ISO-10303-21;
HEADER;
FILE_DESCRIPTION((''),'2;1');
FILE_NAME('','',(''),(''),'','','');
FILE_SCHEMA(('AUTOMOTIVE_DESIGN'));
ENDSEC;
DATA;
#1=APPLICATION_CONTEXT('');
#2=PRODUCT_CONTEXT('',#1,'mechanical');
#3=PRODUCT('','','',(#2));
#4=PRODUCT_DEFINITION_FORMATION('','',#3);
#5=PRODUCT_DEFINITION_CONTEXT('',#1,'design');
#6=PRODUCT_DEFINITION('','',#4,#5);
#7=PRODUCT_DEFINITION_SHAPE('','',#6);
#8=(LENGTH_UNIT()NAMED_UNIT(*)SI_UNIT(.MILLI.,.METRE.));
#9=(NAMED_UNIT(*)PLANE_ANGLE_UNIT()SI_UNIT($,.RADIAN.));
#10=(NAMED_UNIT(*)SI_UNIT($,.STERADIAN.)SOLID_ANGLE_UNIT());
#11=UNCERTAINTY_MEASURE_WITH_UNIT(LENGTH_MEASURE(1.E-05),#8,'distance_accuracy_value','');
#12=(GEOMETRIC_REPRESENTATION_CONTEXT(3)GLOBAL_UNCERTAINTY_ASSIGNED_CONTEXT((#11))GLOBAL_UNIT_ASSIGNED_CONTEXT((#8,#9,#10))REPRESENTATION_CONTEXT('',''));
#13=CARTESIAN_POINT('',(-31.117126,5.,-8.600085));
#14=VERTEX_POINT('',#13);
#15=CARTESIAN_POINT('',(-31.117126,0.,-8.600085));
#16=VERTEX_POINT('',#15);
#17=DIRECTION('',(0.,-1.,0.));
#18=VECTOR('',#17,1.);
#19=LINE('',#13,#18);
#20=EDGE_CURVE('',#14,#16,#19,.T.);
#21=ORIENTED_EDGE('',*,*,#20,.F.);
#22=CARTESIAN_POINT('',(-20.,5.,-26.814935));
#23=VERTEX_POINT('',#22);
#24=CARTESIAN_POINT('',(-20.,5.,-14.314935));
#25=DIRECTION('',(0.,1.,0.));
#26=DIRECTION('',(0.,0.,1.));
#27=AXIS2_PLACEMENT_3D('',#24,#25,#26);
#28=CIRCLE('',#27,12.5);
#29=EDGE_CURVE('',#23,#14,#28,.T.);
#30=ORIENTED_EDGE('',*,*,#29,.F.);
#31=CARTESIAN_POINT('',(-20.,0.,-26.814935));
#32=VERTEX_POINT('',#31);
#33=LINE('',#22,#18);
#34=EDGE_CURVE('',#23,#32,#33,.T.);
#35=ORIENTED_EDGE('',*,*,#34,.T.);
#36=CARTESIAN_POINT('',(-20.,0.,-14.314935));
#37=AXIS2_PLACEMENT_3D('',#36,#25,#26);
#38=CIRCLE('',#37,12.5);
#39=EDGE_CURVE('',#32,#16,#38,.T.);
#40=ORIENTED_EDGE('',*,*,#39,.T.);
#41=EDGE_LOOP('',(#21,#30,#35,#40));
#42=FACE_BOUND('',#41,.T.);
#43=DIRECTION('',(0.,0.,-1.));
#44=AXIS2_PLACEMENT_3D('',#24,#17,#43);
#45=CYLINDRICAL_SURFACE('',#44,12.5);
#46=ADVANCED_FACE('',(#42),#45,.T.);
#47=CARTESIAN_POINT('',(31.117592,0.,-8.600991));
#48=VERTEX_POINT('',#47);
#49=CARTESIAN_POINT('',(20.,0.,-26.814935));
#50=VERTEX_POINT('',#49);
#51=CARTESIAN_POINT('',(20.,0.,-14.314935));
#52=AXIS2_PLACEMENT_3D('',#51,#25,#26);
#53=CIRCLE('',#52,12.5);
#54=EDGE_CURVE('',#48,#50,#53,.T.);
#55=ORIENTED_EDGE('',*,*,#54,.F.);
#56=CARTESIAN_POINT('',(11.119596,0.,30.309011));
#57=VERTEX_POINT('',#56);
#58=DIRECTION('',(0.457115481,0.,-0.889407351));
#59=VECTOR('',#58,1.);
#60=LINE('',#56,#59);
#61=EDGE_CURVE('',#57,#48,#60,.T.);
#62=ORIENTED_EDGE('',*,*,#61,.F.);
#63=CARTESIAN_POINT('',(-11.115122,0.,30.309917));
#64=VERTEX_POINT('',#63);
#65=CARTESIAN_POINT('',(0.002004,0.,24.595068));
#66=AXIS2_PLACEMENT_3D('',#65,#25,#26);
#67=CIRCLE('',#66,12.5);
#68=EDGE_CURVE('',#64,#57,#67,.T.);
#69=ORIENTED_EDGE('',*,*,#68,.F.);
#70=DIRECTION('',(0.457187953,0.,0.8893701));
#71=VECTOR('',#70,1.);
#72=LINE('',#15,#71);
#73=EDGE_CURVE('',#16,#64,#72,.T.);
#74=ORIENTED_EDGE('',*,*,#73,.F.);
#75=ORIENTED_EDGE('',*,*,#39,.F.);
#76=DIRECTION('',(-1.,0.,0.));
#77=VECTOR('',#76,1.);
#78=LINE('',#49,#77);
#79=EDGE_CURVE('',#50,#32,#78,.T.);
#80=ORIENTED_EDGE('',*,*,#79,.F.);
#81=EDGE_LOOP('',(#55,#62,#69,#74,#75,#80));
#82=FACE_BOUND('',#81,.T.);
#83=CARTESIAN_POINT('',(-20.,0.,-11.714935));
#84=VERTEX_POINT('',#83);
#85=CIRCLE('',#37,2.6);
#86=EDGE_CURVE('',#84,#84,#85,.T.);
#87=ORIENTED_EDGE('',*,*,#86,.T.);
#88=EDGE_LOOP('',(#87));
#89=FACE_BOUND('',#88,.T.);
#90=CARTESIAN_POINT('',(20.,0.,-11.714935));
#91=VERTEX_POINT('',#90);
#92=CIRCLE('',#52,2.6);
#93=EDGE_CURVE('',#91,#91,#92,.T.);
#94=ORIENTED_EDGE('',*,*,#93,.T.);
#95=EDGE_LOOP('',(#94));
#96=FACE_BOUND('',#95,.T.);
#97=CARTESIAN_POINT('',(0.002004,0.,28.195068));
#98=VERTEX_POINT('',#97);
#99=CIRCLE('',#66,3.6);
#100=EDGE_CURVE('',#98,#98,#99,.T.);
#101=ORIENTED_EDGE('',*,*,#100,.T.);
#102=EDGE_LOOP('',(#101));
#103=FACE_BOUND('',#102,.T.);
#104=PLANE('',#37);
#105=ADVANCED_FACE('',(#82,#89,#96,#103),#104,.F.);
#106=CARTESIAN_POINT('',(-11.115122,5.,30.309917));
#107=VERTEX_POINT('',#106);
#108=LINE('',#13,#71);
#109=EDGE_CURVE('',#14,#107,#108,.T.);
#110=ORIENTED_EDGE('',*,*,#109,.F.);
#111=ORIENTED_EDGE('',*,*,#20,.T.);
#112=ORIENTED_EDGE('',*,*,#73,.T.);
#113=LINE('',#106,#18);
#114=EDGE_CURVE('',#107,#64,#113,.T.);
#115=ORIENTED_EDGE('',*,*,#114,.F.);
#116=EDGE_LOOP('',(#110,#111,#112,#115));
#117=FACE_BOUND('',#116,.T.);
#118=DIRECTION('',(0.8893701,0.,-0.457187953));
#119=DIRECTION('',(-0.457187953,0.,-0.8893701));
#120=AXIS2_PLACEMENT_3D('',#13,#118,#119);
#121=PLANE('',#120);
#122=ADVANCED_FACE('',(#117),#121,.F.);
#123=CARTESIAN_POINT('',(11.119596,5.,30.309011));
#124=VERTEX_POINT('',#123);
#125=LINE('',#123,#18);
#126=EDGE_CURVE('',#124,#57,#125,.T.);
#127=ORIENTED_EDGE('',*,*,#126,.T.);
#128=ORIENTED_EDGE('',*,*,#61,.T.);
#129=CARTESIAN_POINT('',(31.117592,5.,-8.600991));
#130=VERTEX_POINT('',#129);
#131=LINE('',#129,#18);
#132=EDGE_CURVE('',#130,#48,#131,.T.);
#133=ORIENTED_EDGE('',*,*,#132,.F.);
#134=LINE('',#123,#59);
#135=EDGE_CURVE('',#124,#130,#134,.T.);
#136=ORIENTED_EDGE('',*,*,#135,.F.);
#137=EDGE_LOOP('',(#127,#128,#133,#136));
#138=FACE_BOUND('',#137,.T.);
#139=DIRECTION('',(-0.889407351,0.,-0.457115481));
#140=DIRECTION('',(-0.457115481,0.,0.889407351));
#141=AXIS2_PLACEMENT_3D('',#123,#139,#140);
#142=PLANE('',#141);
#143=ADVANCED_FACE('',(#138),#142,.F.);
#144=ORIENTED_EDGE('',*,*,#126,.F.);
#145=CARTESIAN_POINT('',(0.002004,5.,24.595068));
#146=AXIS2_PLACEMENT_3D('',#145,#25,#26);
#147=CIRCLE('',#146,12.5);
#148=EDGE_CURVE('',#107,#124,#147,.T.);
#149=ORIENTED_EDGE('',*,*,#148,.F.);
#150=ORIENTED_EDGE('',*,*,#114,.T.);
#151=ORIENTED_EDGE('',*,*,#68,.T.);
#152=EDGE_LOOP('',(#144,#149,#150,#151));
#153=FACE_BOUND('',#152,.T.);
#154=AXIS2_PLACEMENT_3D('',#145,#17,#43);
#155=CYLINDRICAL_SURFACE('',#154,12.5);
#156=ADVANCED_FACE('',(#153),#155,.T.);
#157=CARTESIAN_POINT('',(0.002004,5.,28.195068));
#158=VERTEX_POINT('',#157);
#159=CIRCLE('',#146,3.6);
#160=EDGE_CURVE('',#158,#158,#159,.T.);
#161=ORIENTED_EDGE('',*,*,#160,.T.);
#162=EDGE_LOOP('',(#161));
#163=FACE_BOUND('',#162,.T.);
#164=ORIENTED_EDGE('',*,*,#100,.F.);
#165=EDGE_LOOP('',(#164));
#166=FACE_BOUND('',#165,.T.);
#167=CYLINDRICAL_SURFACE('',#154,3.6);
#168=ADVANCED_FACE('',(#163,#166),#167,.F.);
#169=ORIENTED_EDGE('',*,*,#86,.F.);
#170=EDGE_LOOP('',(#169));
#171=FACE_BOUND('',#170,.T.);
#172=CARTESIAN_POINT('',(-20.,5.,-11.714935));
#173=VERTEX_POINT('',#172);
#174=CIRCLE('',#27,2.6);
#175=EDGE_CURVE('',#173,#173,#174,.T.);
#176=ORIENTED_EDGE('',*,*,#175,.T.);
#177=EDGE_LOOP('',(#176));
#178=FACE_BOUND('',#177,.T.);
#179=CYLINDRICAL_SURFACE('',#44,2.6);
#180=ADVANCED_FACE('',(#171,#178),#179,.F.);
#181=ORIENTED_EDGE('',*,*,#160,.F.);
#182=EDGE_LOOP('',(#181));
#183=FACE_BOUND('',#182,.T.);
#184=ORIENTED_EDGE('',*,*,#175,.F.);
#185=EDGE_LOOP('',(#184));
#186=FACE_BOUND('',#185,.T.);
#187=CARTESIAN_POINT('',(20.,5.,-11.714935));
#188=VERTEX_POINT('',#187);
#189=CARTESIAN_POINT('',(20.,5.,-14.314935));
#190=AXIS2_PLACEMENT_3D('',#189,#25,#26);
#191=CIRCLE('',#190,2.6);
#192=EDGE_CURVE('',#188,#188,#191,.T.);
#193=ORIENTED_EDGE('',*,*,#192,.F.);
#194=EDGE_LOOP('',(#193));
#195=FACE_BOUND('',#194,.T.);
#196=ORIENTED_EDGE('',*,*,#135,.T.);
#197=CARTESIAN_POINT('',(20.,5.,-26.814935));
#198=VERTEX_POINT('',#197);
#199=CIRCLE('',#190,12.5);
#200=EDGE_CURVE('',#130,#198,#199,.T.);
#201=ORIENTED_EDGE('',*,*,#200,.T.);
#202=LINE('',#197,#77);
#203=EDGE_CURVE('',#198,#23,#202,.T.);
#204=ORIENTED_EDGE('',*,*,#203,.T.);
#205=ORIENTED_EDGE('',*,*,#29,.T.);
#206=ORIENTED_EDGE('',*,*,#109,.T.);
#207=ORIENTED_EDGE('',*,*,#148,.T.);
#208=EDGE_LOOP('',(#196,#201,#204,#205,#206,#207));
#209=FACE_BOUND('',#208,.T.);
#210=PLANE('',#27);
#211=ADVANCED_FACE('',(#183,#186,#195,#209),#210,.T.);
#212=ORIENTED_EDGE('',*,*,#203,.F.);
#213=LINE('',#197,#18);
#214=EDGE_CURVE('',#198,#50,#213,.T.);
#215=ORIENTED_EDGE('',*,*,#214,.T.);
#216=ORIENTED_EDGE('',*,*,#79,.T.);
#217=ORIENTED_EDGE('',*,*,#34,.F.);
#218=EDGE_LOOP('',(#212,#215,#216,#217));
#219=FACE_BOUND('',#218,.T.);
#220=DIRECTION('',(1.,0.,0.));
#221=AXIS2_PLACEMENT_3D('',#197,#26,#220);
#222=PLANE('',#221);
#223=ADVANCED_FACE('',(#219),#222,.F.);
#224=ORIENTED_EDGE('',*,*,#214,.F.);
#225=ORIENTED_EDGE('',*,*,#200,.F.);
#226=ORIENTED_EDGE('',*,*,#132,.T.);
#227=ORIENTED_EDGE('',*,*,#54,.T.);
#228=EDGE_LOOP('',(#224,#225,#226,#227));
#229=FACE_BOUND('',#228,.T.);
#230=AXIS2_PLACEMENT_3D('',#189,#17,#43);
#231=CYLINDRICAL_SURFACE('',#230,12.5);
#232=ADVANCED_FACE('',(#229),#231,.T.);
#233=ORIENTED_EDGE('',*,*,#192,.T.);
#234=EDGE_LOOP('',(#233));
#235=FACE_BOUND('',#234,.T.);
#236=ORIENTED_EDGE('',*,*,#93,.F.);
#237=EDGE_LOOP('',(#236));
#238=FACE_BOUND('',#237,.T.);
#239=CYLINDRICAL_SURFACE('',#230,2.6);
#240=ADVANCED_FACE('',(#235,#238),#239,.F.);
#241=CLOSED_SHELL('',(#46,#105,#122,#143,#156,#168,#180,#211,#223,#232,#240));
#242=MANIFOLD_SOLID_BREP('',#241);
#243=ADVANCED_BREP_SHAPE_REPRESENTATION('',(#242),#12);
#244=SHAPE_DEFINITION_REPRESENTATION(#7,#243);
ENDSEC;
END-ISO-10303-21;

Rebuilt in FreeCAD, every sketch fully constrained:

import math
import FreeCAD as App
import Part
import Sketcher
from FreeCAD import Vector
Q = App.Units.Quantity

doc = App.newDocument("Part")
params = doc.addObject("Spreadsheet::Sheet", "Params")
for row, (alias, value) in enumerate([
    ("sketch1_diameter", "7.2 mm"),
    ("sketch1_diameter2", "5.2 mm"),
    ("sketch1_radius", "12.5 mm"),
    ("sketch1_width", "40 mm"),
    ("pad1_length", "5 mm"),
], start=1):
    params.set(f"A{row}", alias)
    params.set(f"B{row}", "=" + value)
    params.setAlias(f"B{row}", alias)

body = doc.addObject("PartDesign::Body", "Body")

sketch1 = body.newObject("Sketcher::SketchObject", "Sketch")
sketch1.AttachmentSupport = (doc.getObject("XZ_Plane"), [""])
sketch1.MapMode = "FlatFace"
sketch1.addGeometry([
    Part.LineSegment(Vector(-31.117126, -8.600085, 0), Vector(-11.115122, 30.309917, 0)),
    Part.ArcOfCircle(Part.Circle(Vector(0.002004, 24.595068, 0), Vector(0, 0, 1), 12.5), math.radians(27.201131), math.radians(152.7942)),
    Part.LineSegment(Vector(11.119596, 30.309011, 0), Vector(31.117592, -8.600991, 0)),
    Part.ArcOfCircle(Part.Circle(Vector(20, -14.314935, 0), Vector(0, 0, 1), 12.5), math.radians(-90), math.radians(27.201131)),
    Part.LineSegment(Vector(20, -26.814935, 0), Vector(-20, -26.814935, 0)),
    Part.ArcOfCircle(Part.Circle(Vector(-20, -14.314935, 0), Vector(0, 0, 1), 12.5), math.radians(152.7942), math.radians(270)),
    Part.Circle(Vector(0.002004, 24.595068, 0), Vector(0, 0, 1), 3.6),
    Part.Circle(Vector(-20, -14.314935, 0), Vector(0, 0, 1), 2.6),
    Part.Circle(Vector(20, -14.314935, 0), Vector(0, 0, 1), 2.6),
], False)
sketch1.addConstraint([
    Sketcher.Constraint("Tangent", 0, 2, 1, 2),
    Sketcher.Constraint("Tangent", 1, 1, 2, 1),
    Sketcher.Constraint("Tangent", 2, 2, 3, 2),
    Sketcher.Constraint("Tangent", 3, 1, 4, 1),
    Sketcher.Constraint("Tangent", 4, 2, 5, 2),
    Sketcher.Constraint("Tangent", 5, 1, 0, 1),
    Sketcher.Constraint("Horizontal", 4),
    Sketcher.Constraint("Coincident", 6, 3, 1, 3),
    Sketcher.Constraint("Coincident", 7, 3, 5, 3),
    Sketcher.Constraint("Coincident", 8, 3, 3, 3),
    Sketcher.Constraint("Equal", 1, 3),
    Sketcher.Constraint("Equal", 3, 5),
    Sketcher.Constraint("Equal", 7, 8),
    Sketcher.Constraint("Diameter", 6, Q("7.2 mm")),
    Sketcher.Constraint("Diameter", 7, Q("5.2 mm")),
    Sketcher.Constraint("Radius", 1, Q("12.5 mm")),
    Sketcher.Constraint("DistanceX", 4, 2, 4, 1, Q("40 mm")),
    Sketcher.Constraint("DistanceX", -1, 1, 3, 3, Q("20 mm")),
    Sketcher.Constraint("Distance", 0, Q("43.750068 mm")),
    Sketcher.Constraint("DistanceY", -1, 1, 1, 1, Q("30.309011 mm")),
    Sketcher.Constraint("DistanceX", -1, 1, 2, 2, Q("31.117592 mm")),
])
sketch1.setExpression("Constraints[13]", "Params.sketch1_diameter")
sketch1.setExpression("Constraints[14]", "Params.sketch1_diameter2")
sketch1.setExpression("Constraints[15]", "Params.sketch1_radius")
sketch1.setExpression("Constraints[16]", "Params.sketch1_width")
pad1 = body.newObject("PartDesign::Pad", "Pad")
pad1.Profile = sketch1
pad1.setExpression("Length", "Params.pad1_length")
pad1.Reversed = True

doc.recompute()
